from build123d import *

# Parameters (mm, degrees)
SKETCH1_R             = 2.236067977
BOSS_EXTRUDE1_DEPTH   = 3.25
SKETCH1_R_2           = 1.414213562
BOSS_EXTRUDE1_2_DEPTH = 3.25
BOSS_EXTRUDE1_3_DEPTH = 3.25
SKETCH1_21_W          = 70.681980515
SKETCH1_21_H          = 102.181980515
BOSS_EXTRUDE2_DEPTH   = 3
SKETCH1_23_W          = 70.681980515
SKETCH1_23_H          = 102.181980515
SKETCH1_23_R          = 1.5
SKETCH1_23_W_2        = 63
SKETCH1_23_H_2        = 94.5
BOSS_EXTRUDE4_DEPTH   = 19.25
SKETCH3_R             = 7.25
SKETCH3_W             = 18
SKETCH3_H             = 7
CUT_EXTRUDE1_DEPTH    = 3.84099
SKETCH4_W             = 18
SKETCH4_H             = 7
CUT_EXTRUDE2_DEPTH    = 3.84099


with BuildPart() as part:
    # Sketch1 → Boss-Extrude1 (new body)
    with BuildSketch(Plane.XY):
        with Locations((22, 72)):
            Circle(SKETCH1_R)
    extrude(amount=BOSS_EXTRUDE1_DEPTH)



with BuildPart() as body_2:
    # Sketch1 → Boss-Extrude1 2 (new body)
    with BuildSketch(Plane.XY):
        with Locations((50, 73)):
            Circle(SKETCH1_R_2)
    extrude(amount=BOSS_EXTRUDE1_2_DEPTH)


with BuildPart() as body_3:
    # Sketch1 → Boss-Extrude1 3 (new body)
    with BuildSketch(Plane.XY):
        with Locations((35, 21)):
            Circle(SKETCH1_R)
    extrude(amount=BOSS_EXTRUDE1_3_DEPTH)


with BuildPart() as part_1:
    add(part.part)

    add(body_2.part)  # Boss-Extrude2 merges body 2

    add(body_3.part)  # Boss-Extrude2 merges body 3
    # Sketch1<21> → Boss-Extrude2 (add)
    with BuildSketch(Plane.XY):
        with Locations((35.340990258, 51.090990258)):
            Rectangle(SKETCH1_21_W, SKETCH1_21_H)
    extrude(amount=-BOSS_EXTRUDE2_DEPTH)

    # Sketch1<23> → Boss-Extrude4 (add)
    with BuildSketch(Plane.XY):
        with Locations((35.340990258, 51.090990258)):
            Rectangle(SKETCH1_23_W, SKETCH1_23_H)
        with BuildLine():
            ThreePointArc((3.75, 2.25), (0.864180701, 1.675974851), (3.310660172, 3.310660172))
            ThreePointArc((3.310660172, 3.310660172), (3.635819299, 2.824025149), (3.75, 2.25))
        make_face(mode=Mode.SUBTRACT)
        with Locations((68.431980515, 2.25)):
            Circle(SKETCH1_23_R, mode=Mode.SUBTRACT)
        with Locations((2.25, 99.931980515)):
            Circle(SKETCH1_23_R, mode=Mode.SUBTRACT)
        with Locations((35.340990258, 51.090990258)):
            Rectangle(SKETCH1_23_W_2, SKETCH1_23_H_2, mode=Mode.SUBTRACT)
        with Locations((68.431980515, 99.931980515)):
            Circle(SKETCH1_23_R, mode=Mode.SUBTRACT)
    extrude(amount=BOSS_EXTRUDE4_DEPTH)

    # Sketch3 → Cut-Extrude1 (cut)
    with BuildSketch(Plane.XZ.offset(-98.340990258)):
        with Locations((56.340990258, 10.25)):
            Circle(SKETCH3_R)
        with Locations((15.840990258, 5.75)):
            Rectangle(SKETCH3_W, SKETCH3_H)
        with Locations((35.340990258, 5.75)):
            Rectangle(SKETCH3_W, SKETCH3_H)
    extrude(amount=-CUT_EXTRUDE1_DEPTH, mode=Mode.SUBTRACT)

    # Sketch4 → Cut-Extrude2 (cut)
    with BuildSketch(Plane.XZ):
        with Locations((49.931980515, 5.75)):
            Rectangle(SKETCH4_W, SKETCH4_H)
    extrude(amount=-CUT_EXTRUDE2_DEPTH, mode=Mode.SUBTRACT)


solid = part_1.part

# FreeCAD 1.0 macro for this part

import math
import FreeCAD as App
import Part
import Sketcher
from FreeCAD import Vector
Q = App.Units.Quantity

doc = App.newDocument("Part")
params = doc.addObject("Spreadsheet::Sheet", "Params")
for row, (alias, value) in enumerate([
    ("pad1_length", "3.25 mm"),
    ("pad2_length", "3.25 mm"),
    ("pad3_length", "3.25 mm"),
    ("pad4_length", "3 mm"),
    ("sketch5_diameter", "3 mm"),
    ("sketch5_width", "63 mm"),
    ("sketch5_height", "94.5 mm"),
    ("pad5_length", "19.25 mm"),
    ("sketch6_diameter", "14.5 mm"),
    ("sketch6_width", "18 mm"),
    ("sketch6_height", "7 mm"),
    ("pocket1_length", "3.84099 mm"),
    ("sketch7_width", "18 mm"),
    ("sketch7_height", "7 mm"),
    ("pocket2_length", "3.84099 mm"),
], start=1):
    params.set(f"A{row}", alias)
    params.set(f"B{row}", "=" + value)
    params.setAlias(f"B{row}", alias)

body = doc.addObject("PartDesign::Body", "Body")

# Sketch on XY plane
sketch1 = body.newObject("Sketcher::SketchObject", "Sketch")
sketch1.AttachmentSupport = (doc.getObject("XY_Plane"), [""])
sketch1.MapMode = "FlatFace"
sketch1.addGeometry(Part.Circle(Vector(22, 72, 0), Vector(0, 0, 1), 2.2), False)
sketch1.addConstraint([
    Sketcher.Constraint("DistanceX", -1, 1, 0, 3, Q("22 mm")),
    Sketcher.Constraint("DistanceY", -1, 1, 0, 3, Q("72 mm")),
    Sketcher.Constraint("Diameter", 0, Q("4.472136 mm")),
])
pad1 = body.newObject("PartDesign::Pad", "Pad")
pad1.Profile = sketch1
pad1.setExpression("Length", "Params.pad1_length")
body2 = doc.addObject("PartDesign::Body", "Body001")

# Sketch on XY plane
sketch2 = body2.newObject("Sketcher::SketchObject", "Sketch001")
sketch2.AttachmentSupport = (doc.getObject("XY_Plane001"), [""])
sketch2.MapMode = "FlatFace"
sketch2.addGeometry(Part.Circle(Vector(50, 73, 0), Vector(0, 0, 1), 1.4), False)
sketch2.addConstraint([
    Sketcher.Constraint("DistanceX", -1, 1, 0, 3, Q("50 mm")),
    Sketcher.Constraint("DistanceY", -1, 1, 0, 3, Q("73 mm")),
    Sketcher.Constraint("Diameter", 0, Q("2.828427 mm")),
])
pad2 = body2.newObject("PartDesign::Pad", "Pad001")
pad2.Profile = sketch2
pad2.setExpression("Length", "Params.pad2_length")
body3 = doc.addObject("PartDesign::Body", "Body002")

# Sketch on XY plane
sketch3 = body3.newObject("Sketcher::SketchObject", "Sketch002")
sketch3.AttachmentSupport = (doc.getObject("XY_Plane002"), [""])
sketch3.MapMode = "FlatFace"
sketch3.addGeometry(Part.Circle(Vector(35, 21, 0), Vector(0, 0, 1), 2.2), False)
sketch3.addConstraint([
    Sketcher.Constraint("DistanceX", -1, 1, 0, 3, Q("35 mm")),
    Sketcher.Constraint("DistanceY", -1, 1, 0, 3, Q("21 mm")),
    Sketcher.Constraint("Diameter", 0, Q("4.472136 mm")),
])
pad3 = body3.newObject("PartDesign::Pad", "Pad002")
pad3.Profile = sketch3
pad3.setExpression("Length", "Params.pad3_length")
body.AllowCompound = True
doc.recompute()

boolean = body.newObject("PartDesign::Boolean", "Boolean")
boolean.Type = "Fuse"
boolean.addObjects([body2])
doc.recompute()

boolean2 = body.newObject("PartDesign::Boolean", "Boolean001")
boolean2.Type = "Fuse"
boolean2.addObjects([body3])

# Sketch on XY plane
sketch4 = body.newObject("Sketcher::SketchObject", "Sketch003")
sketch4.AttachmentSupport = (doc.getObject("XY_Plane"), [""])
sketch4.MapMode = "FlatFace"
sketch4.addGeometry([
    Part.LineSegment(Vector(0, 102, 0), Vector(0, 0, 0)),
    Part.LineSegment(Vector(0, 0, 0), Vector(71, 0, 0)),
    Part.LineSegment(Vector(71, 0, 0), Vector(71, 102, 0)),
    Part.LineSegment(Vector(71, 102, 0), Vector(0, 102, 0)),
], False)
sketch4.addConstraint([
    Sketcher.Constraint("Coincident", 0, 2, 1, 1),
    Sketcher.Constraint("Coincident", 1, 2, 2, 1),
    Sketcher.Constraint("Coincident", 2, 2, 3, 1),
    Sketcher.Constraint("Coincident", 3, 2, 0, 1),
    Sketcher.Constraint("Vertical", 0),
    Sketcher.Constraint("Horizontal", 1),
    Sketcher.Constraint("Vertical", 2),
    Sketcher.Constraint("Horizontal", 3),
    Sketcher.Constraint("Coincident", 0, 2, -1, 1),
    Sketcher.Constraint("DistanceX", 1, 1, 1, 2, Q("70.681981 mm")),
    Sketcher.Constraint("DistanceY", 0, 2, 0, 1, Q("102.181981 mm")),
])
pad4 = body.newObject("PartDesign::Pad", "Pad003")
pad4.Profile = sketch4
pad4.setExpression("Length", "Params.pad4_length")
pad4.Reversed = True

# Sketch on XY plane
sketch5 = body.newObject("Sketcher::SketchObject", "Sketch004")
sketch5.AttachmentSupport = (doc.getObject("XY_Plane"), [""])
sketch5.MapMode = "FlatFace"
sketch5.addGeometry([
    Part.LineSegment(Vector(0, 102.2, 0), Vector(0, 0, 0)),  # 0
    Part.LineSegment(Vector(0, 0, 0), Vector(70.7, 0, 0)),  # 1
    Part.LineSegment(Vector(70.7, 0, 0), Vector(70.7, 102.2, 0)),  # 2
    Part.LineSegment(Vector(70.7, 102.2, 0), Vector(0, 102.2, 0)),  # 3
    Part.ArcOfCircle(Part.Circle(Vector(2.3, 2.3, 0), Vector(0, 0, 1), 1.5), math.radians(0), math.radians(45)),  # 4
    Part.ArcOfCircle(Part.Circle(Vector(2.2, 2.2, 0), Vector(0, 0, 1), 1.5), math.radians(45), math.radians(360)),  # 5
    Part.Circle(Vector(68.4, 2.2, 0), Vector(0, 0, 1), 1.5),  # 6
    Part.Circle(Vector(2.2, 99.9, 0), Vector(0, 0, 1), 1.5),  # 7
    Part.LineSegment(Vector(66.8, 3.8, 0), Vector(3.8, 3.8, 0)),  # 8
    Part.LineSegment(Vector(3.8, 3.8, 0), Vector(3.8, 98.3, 0)),  # 9
    Part.LineSegment(Vector(3.8, 98.3, 0), Vector(66.8, 98.3, 0)),  # 10
    Part.LineSegment(Vector(66.8, 98.3, 0), Vector(66.8, 3.8, 0)),  # 11
    Part.Circle(Vector(68.4, 99.9, 0), Vector(0, 0, 1), 1.5),  # 12
], False)
sketch5.addConstraint([
    Sketcher.Constraint("Coincident", 0, 2, 1, 1),
    Sketcher.Constraint("Coincident", 1, 2, 2, 1),
    Sketcher.Constraint("Coincident", 2, 2, 3, 1),
    Sketcher.Constraint("Coincident", 3, 2, 0, 1),
    Sketcher.Constraint("Tangent", 4, 1, 5, 2),
    Sketcher.Constraint("Coincident", 5, 1, 4, 2),
    Sketcher.Constraint("Coincident", 8, 2, 9, 1),
    Sketcher.Constraint("Coincident", 9, 2, 10, 1),
    Sketcher.Constraint("Coincident", 10, 2, 11, 1),
    Sketcher.Constraint("Coincident", 11, 2, 8, 1),
    Sketcher.Constraint("Vertical", 0),
    Sketcher.Constraint("Horizontal", 1),
    Sketcher.Constraint("Vertical", 2),
    Sketcher.Constraint("Horizontal", 3),
    Sketcher.Constraint("Horizontal", 8),
    Sketcher.Constraint("Vertical", 9),
    Sketcher.Constraint("Horizontal", 10),
    Sketcher.Constraint("Vertical", 11),
    Sketcher.Constraint("Coincident", 0, 2, -1, 1),
    Sketcher.Constraint("Equal", 5, 6),
    Sketcher.Constraint("Equal", 6, 7),
    Sketcher.Constraint("Equal", 7, 12),
    Sketcher.Constraint("Horizontal", 5, 3, 6, 3),
    Sketcher.Constraint("Horizontal", 7, 3, 12, 3),
    Sketcher.Constraint("Horizontal", 6, 3, 4, 1),
    Sketcher.Constraint("Vertical", 5, 3, 7, 3),
    Sketcher.Constraint("Vertical", 6, 3, 12, 3),
    Sketcher.Constraint("Diameter", 6, Q("3 mm")),
    Sketcher.Constraint("DistanceX", 8, 2, 8, 1, Q("63 mm")),
    Sketcher.Constraint("DistanceY", 9, 1, 9, 2, Q("94.5 mm")),
    Sketcher.Constraint("DistanceX", -1, 1, 4, 3, Q("2.25 mm")),
    Sketcher.Constraint("DistanceY", -1, 1, 4, 3, Q("2.25 mm")),
    Sketcher.Constraint("DistanceX", 6, 3, 1, 2, Q("2.25 mm")),
    Sketcher.Constraint("DistanceY", 12, 3, 2, 2, Q("2.25 mm")),
    Sketcher.Constraint("DistanceX", 1, 1, 1, 2, Q("70.681981 mm")),
    Sketcher.Constraint("DistanceY", 0, 2, 0, 1, Q("102.181981 mm")),
    Sketcher.Constraint("DistanceX", -1, 1, 5, 1, Q("3.31066 mm")),
    Sketcher.Constraint("DistanceX", -1, 1, 8, 2, Q("3.84099 mm")),
    Sketcher.Constraint("DistanceY", -1, 1, 8, 2, Q("3.84099 mm")),
])
sketch5.setExpression("Constraints[27]", "Params.sketch5_diameter")
sketch5.setExpression("Constraints[28]", "Params.sketch5_width")
sketch5.setExpression("Constraints[29]", "Params.sketch5_height")
pad5 = body.newObject("PartDesign::Pad", "Pad004")
pad5.Profile = sketch5
pad5.setExpression("Length", "Params.pad5_length")

# Sketch on XZ plane
sketch6 = body.newObject("Sketcher::SketchObject", "Sketch005")
sketch6.AttachmentSupport = (doc.getObject("XZ_Plane"), [""])
sketch6.MapMode = "FlatFace"
sketch6.AttachmentOffset = App.Placement(Vector(0, 0, -98.34099), App.Rotation())
sketch6.addGeometry([
    Part.Circle(Vector(56, 10, 0), Vector(0, 0, 1), 7),  # 0
    Part.LineSegment(Vector(7, 9, 0), Vector(7, 2, 0)),  # 1
    Part.LineSegment(Vector(7, 2, 0), Vector(25, 2, 0)),  # 2
    Part.LineSegment(Vector(25, 2, 0), Vector(25, 9, 0)),  # 3
    Part.LineSegment(Vector(25, 9, 0), Vector(7, 9, 0)),  # 4
    Part.LineSegment(Vector(26, 9, 0), Vector(26, 2, 0)),  # 5
    Part.LineSegment(Vector(26, 2, 0), Vector(44, 2, 0)),  # 6
    Part.LineSegment(Vector(44, 2, 0), Vector(44, 9, 0)),  # 7
    Part.LineSegment(Vector(44, 9, 0), Vector(26, 9, 0)),  # 8
], False)
sketch6.addConstraint([
    Sketcher.Constraint("Coincident", 1, 2, 2, 1),
    Sketcher.Constraint("Coincident", 2, 2, 3, 1),
    Sketcher.Constraint("Coincident", 3, 2, 4, 1),
    Sketcher.Constraint("Coincident", 4, 2, 1, 1),
    Sketcher.Constraint("Coincident", 5, 2, 6, 1),
    Sketcher.Constraint("Coincident", 6, 2, 7, 1),
    Sketcher.Constraint("Coincident", 7, 2, 8, 1),
    Sketcher.Constraint("Coincident", 8, 2, 5, 1),
    Sketcher.Constraint("Vertical", 1),
    Sketcher.Constraint("Horizontal", 2),
    Sketcher.Constraint("Vertical", 3),
    Sketcher.Constraint("Horizontal", 4),
    Sketcher.Constraint("Vertical", 5),
    Sketcher.Constraint("Horizontal", 6),
    Sketcher.Constraint("Vertical", 7),
    Sketcher.Constraint("Horizontal", 8),
    Sketcher.Constraint("Horizontal", 2, 2, 5, 2),
    Sketcher.Constraint("Horizontal", 4, 2, 7, 2),
    Sketcher.Constraint("Equal", 4, 6),
    Sketcher.Constraint("Diameter", 0, Q("14.5 mm")),
    Sketcher.Constraint("DistanceX", 2, 1, 2, 2, Q("18 mm")),
    Sketcher.Constraint("DistanceY", 1, 2, 1, 1, Q("7 mm")),
    Sketcher.Constraint("DistanceY", 1, 2, 0, 3, Q("8 mm")),
    Sketcher.Constraint("DistanceX", 5, 2, 0, 3, Q("30 mm")),
    Sketcher.Constraint("DistanceX", 1, 2, 0, 3, Q("49.5 mm")),
    Sketcher.Constraint("DistanceY", -1, 1, 0, 3, Q("10.25 mm")),
    Sketcher.Constraint("DistanceX", -1, 1, 0, 3, Q("56.34099 mm")),
])
sketch6.setExpression("Constraints[19]", "Params.sketch6_diameter")
sketch6.setExpression("Constraints[20]", "Params.sketch6_width")
sketch6.setExpression("Constraints[21]", "Params.sketch6_height")
pocket1 = body.newObject("PartDesign::Pocket", "Pocket")
pocket1.Profile = sketch6
pocket1.setExpression("Length", "Params.pocket1_length")

# Sketch on XZ plane
sketch7 = body.newObject("Sketcher::SketchObject", "Sketch006")
sketch7.AttachmentSupport = (doc.getObject("XZ_Plane"), [""])
sketch7.MapMode = "FlatFace"
sketch7.addGeometry([
    Part.LineSegment(Vector(41, 9, 0), Vector(41, 2, 0)),
    Part.LineSegment(Vector(41, 2, 0), Vector(59, 2, 0)),
    Part.LineSegment(Vector(59, 2, 0), Vector(59, 9, 0)),
    Part.LineSegment(Vector(59, 9, 0), Vector(41, 9, 0)),
], False)
sketch7.addConstraint([
    Sketcher.Constraint("Coincident", 0, 2, 1, 1),
    Sketcher.Constraint("Coincident", 1, 2, 2, 1),
    Sketcher.Constraint("Coincident", 2, 2, 3, 1),
    Sketcher.Constraint("Coincident", 3, 2, 0, 1),
    Sketcher.Constraint("Vertical", 0),
    Sketcher.Constraint("Horizontal", 1),
    Sketcher.Constraint("Vertical", 2),
    Sketcher.Constraint("Horizontal", 3),
    Sketcher.Constraint("DistanceX", 1, 1, 1, 2, Q("18 mm")),
    Sketcher.Constraint("DistanceY", 0, 2, 0, 1, Q("7 mm")),
    Sketcher.Constraint("DistanceY", -1, 1, 0, 2, Q("2.25 mm")),
    Sketcher.Constraint("DistanceX", -1, 1, 0, 2, Q("40.931981 mm")),
])
sketch7.setExpression("Constraints[8]", "Params.sketch7_width")
sketch7.setExpression("Constraints[9]", "Params.sketch7_height")
pocket2 = body.newObject("PartDesign::Pocket", "Pocket001")
pocket2.Profile = sketch7
pocket2.setExpression("Length", "Params.pocket2_length")

doc.recompute()
